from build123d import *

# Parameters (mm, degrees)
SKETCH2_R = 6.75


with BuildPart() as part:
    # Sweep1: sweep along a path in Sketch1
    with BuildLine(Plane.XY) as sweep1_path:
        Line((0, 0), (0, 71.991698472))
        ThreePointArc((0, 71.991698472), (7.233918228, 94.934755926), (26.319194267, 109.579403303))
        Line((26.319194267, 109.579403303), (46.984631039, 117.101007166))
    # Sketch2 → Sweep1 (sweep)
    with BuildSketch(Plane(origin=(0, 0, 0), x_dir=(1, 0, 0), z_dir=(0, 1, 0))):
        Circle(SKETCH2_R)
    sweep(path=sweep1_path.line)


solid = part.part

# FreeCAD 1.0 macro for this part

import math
import FreeCAD as App
import Part
import Sketcher
from FreeCAD import Vector
Q = App.Units.Quantity

doc = App.newDocument("Part")
body = doc.addObject("PartDesign::Body", "Body")

# Sketch on XZ plane
sketch1 = body.newObject("Sketcher::SketchObject", "Sketch")
sketch1.AttachmentSupport = (doc.getObject("XZ_Plane"), [""])
sketch1.MapMode = "FlatFace"
sketch1.addGeometry(Part.Circle(Vector(0, 0, 0), Vector(0, 0, 1), 7), False)
sketch1.addConstraint([
    Sketcher.Constraint("Coincident", 0, 3, -1, 1),
    Sketcher.Constraint("Diameter", 0, 13.5),
])

# Sketch on XY plane
sketch2 = body.newObject("Sketcher::SketchObject", "Sketch001")
sketch2.AttachmentSupport = (doc.getObject("XY_Plane"), [""])
sketch2.MapMode = "FlatFace"
sketch2.addGeometry([
    Part.LineSegment(Vector(0, 0, 0), Vector(0, 72, 0)),
    Part.ArcOfCircle(Part.Circle(Vector(40, 72, 0), Vector(0, 0, 1), 40), math.radians(110), math.radians(180)),
    Part.LineSegment(Vector(26, 110, 0), Vector(47, 117, 0)),
], False)
sketch2.addConstraint([
    Sketcher.Constraint("Tangent", 0, 2, 1, 2),
    Sketcher.Constraint("Tangent", 1, 1, 2, 1),
    Sketcher.Constraint("Vertical", 0),
    Sketcher.Constraint("Coincident", 0, 1, -1, 1),
    Sketcher.Constraint("Radius", 1, 40.0),
    Sketcher.Constraint("Angle", 2, Q("20 deg")),
    Sketcher.Constraint("DistanceY", 0, 1, 0, 2, 71.991698),
    Sketcher.Constraint("Distance", 2, 21.991698),
])
doc.recompute()

additivepipe = body.newObject("PartDesign::AdditivePipe", "AdditivePipe")
additivepipe.Profile = sketch1
additivepipe.Spine = (sketch2, ["Edge1", "Edge2", "Edge3"])

doc.recompute()
